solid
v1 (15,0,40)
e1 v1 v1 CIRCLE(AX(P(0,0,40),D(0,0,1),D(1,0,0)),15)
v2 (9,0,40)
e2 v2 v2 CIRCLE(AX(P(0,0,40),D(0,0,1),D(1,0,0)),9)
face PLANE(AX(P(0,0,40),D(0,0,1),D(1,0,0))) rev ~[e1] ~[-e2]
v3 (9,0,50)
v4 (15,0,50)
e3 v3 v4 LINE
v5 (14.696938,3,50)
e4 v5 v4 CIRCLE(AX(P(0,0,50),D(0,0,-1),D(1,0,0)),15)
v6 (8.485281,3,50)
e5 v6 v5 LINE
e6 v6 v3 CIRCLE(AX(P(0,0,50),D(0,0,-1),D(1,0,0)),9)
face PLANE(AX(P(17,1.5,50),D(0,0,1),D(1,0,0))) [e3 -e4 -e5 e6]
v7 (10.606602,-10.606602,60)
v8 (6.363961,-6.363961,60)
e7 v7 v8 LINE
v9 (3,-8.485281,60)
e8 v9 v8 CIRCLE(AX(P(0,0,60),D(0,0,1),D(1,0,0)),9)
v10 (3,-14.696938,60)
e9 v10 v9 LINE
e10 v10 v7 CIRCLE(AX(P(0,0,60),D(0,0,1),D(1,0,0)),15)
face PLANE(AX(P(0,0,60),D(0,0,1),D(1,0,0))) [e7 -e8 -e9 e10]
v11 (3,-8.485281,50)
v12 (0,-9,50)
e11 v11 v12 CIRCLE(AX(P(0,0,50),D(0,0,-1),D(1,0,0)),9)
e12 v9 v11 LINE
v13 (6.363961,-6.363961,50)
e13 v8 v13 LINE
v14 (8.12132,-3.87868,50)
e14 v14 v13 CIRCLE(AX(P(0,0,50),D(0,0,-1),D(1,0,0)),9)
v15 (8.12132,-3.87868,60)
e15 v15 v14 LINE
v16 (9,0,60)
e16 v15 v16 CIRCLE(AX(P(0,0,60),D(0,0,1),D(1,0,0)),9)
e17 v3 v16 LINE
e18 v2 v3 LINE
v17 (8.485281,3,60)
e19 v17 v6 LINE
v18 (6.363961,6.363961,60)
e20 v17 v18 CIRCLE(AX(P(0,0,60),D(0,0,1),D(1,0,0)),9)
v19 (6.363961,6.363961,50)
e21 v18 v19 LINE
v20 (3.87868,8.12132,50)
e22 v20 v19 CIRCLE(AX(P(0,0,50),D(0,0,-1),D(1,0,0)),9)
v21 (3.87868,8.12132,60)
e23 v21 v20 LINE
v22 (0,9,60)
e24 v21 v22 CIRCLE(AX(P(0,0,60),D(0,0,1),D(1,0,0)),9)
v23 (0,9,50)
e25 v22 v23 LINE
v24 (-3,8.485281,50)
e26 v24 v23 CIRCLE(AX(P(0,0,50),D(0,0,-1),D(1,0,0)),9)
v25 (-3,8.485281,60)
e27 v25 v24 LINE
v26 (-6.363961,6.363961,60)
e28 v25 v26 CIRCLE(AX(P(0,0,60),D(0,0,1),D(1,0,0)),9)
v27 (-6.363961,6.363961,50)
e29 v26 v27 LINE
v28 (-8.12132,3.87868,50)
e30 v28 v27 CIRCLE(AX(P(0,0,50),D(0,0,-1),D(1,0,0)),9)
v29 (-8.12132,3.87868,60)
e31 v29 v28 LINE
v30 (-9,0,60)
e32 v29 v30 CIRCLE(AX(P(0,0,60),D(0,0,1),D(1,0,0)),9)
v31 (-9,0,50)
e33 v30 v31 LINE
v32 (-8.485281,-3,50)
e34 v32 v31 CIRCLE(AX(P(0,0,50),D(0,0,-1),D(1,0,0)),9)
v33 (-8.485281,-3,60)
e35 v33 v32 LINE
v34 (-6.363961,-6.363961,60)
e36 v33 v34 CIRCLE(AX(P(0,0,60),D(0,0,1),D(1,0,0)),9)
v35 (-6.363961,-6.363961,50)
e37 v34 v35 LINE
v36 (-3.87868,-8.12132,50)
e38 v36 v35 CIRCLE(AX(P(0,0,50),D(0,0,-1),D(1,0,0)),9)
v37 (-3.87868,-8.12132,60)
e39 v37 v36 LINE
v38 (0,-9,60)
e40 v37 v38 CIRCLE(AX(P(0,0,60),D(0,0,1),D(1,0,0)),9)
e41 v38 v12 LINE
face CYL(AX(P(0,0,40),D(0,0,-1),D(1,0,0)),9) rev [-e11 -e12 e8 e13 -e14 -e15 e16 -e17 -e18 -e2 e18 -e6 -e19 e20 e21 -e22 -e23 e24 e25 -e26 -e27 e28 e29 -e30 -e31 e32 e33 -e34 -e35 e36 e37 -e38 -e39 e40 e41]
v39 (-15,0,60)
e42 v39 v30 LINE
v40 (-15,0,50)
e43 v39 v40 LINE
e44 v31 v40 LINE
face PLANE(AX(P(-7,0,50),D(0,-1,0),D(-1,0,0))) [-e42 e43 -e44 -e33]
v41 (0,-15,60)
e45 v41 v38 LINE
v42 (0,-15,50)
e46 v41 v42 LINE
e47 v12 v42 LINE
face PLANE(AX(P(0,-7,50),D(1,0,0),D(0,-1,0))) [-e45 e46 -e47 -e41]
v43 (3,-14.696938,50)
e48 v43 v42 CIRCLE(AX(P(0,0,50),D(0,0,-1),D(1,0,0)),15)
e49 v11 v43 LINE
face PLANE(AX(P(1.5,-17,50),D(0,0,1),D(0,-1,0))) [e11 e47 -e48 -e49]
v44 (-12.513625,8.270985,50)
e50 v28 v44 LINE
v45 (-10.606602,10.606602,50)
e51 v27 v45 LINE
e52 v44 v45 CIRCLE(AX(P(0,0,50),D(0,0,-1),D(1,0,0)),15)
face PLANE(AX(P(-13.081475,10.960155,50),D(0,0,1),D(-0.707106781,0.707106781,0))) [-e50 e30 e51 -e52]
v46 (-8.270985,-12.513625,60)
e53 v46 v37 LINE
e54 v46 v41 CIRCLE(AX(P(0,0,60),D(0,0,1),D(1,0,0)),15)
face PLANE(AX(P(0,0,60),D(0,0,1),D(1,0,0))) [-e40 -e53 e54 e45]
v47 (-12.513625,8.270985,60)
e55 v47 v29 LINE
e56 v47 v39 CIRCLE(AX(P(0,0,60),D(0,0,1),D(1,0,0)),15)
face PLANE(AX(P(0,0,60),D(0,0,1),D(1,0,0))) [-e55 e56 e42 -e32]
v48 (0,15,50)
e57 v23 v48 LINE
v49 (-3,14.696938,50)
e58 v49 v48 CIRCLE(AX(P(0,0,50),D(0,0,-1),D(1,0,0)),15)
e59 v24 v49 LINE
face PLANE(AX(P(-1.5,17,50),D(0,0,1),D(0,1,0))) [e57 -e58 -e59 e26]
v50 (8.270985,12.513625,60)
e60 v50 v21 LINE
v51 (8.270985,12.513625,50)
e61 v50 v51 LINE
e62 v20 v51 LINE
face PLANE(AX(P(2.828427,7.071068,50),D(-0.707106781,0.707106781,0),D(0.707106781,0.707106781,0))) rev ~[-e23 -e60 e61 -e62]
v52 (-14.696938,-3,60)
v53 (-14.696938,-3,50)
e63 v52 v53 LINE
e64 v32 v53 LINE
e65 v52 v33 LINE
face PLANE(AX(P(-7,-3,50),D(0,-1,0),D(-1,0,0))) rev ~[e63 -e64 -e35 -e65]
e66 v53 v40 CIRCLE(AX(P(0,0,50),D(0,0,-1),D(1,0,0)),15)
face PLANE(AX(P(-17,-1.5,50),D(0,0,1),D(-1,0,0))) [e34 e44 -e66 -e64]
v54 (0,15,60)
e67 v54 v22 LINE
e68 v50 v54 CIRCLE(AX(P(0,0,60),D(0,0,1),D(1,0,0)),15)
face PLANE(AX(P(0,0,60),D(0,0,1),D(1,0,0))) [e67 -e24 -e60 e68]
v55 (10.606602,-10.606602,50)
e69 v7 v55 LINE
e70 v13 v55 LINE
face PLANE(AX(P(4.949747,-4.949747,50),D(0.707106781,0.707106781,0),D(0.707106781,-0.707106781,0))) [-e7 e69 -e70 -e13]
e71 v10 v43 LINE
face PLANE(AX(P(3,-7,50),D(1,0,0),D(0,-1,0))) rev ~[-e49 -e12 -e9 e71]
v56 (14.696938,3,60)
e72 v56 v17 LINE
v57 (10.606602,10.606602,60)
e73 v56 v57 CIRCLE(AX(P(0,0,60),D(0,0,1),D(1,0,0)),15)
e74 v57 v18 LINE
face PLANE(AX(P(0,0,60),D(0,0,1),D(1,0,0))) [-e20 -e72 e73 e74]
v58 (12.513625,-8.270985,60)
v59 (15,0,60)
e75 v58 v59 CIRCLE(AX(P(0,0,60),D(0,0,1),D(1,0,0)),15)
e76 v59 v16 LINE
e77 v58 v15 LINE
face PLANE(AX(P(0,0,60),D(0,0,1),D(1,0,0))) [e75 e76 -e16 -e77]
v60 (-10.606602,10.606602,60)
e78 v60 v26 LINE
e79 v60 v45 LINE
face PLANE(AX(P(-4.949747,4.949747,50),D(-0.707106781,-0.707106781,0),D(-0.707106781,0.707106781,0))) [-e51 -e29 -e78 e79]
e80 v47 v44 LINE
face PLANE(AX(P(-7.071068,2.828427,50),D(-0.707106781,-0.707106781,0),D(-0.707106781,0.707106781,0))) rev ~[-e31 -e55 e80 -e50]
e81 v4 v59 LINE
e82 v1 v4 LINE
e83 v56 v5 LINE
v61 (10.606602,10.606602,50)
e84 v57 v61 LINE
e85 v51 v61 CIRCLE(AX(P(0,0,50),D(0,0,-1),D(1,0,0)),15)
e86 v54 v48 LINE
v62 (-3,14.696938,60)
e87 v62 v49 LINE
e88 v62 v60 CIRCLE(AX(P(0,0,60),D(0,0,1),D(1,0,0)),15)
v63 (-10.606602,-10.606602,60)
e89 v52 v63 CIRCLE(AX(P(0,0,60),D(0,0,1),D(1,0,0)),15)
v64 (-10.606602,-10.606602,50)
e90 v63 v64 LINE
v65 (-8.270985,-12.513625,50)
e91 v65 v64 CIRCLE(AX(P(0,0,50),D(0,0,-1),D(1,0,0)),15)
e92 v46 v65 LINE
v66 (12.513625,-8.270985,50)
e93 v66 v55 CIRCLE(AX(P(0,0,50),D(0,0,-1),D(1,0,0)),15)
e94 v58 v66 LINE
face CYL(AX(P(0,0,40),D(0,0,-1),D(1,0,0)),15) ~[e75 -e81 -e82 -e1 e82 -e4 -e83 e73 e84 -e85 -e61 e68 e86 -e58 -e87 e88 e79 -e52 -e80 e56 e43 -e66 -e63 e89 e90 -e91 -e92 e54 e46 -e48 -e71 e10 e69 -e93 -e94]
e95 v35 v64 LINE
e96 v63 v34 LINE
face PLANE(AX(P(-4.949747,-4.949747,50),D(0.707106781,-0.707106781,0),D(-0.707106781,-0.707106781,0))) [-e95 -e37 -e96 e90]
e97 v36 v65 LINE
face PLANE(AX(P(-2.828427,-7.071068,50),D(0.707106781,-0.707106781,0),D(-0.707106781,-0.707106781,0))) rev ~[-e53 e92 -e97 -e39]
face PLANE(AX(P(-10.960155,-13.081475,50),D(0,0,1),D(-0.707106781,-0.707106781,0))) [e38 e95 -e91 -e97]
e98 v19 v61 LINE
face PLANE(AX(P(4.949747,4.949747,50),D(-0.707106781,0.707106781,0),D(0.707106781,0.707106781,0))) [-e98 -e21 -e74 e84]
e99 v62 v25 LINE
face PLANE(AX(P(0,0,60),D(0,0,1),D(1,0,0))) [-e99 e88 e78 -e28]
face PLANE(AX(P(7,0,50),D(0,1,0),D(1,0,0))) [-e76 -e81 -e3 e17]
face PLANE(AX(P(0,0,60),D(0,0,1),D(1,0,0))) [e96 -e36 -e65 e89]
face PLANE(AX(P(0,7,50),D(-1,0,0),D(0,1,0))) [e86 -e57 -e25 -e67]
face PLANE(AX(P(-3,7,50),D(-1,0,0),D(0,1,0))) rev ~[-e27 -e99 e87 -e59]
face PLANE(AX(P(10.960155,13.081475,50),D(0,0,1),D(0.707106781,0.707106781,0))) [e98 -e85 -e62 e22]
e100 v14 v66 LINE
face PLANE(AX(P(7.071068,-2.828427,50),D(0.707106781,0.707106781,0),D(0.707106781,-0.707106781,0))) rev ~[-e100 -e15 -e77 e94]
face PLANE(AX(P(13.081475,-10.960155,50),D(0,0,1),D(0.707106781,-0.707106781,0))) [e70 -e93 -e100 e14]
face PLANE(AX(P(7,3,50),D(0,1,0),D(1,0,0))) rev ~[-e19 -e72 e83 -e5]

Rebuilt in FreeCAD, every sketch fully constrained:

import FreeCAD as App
import Part
import Sketcher

doc = App.newDocument("Part")
body = doc.addObject("PartDesign::Body", "Body")

# Sketch on XY plane
sketch1 = body.newObject("Sketcher::SketchObject", "Sketch")
sketch1.AttachmentSupport = (doc.getObject("XY_Plane"), [""])
sketch1.MapMode = "FlatFace"
sketch1.AttachmentOffset = App.Placement(App.Vector(0, 0, 50), App.Rotation())
sketch1.addGeometry([
    Part.LineSegment(App.Vector(7, 3, 0), App.Vector(7, 0, 0)),
    Part.LineSegment(App.Vector(7, 0, 0), App.Vector(27, 0, 0)),
    Part.LineSegment(App.Vector(27, 0, 0), App.Vector(27, 3, 0)),
    Part.LineSegment(App.Vector(27, 3, 0), App.Vector(7, 3, 0)),
], False)
sketch1.addConstraint([
    Sketcher.Constraint("Coincident", 0, 2, 1, 1),
    Sketcher.Constraint("Coincident", 1, 2, 2, 1),
    Sketcher.Constraint("Coincident", 2, 2, 3, 1),
    Sketcher.Constraint("Coincident", 3, 2, 0, 1),
    Sketcher.Constraint("Vertical", 0),
    Sketcher.Constraint("Horizontal", 1),
    Sketcher.Constraint("Vertical", 2),
    Sketcher.Constraint("Horizontal", 3),
    Sketcher.Constraint("PointOnObject", 0, 2, -1),
    Sketcher.Constraint("DistanceX", 1, 1, 1, 2, 20.0),
    Sketcher.Constraint("DistanceY", 0, 2, 0, 1, 3.0),
    Sketcher.Constraint("DistanceX", -1, 1, 0, 2, 7.0),
])
pad1 = body.newObject("PartDesign::Pad", "Pad")
pad1.Profile = sketch1
pad1.Length = 100
body2 = doc.addObject("PartDesign::Body", "Body001")
body2.AllowCompound = True
doc.recompute()

body2.BaseFeature = body
doc.recompute()

body3 = doc.addObject("PartDesign::Body", "Body002")
body3.BaseFeature = body
body3.Placement = App.Placement(App.Vector(0, 0, 0), App.Rotation(App.Vector(0, 0, 1), 45))
boolean = body2.newObject("PartDesign::Boolean", "Boolean")
boolean.Type = "Fuse"
boolean.addObjects([body3])
doc.recompute()

body4 = doc.addObject("PartDesign::Body", "Body003")
body4.BaseFeature = body
body4.Placement = App.Placement(App.Vector(0, 0, 0), App.Rotation(App.Vector(0, 0, 1), 90))
boolean2 = body2.newObject("PartDesign::Boolean", "Boolean001")
boolean2.Type = "Fuse"
boolean2.addObjects([body4])
doc.recompute()

body5 = doc.addObject("PartDesign::Body", "Body004")
body5.BaseFeature = body
body5.Placement = App.Placement(App.Vector(0, 0, 0), App.Rotation(App.Vector(0, 0, 1), 135))
boolean3 = body2.newObject("PartDesign::Boolean", "Boolean002")
boolean3.Type = "Fuse"
boolean3.addObjects([body5])
doc.recompute()

body6 = doc.addObject("PartDesign::Body", "Body005")
body6.BaseFeature = body
body6.Placement = App.Placement(App.Vector(0, 0, 0), App.Rotation(App.Vector(0, 0, 1), 180))
boolean4 = body2.newObject("PartDesign::Boolean", "Boolean003")
boolean4.Type = "Fuse"
boolean4.addObjects([body6])
doc.recompute()

body7 = doc.addObject("PartDesign::Body", "Body006")
body7.BaseFeature = body
body7.Placement = App.Placement(App.Vector(0, 0, 0), App.Rotation(App.Vector(0, 0, 1), 225))
boolean5 = body2.newObject("PartDesign::Boolean", "Boolean004")
boolean5.Type = "Fuse"
boolean5.addObjects([body7])
doc.recompute()

body8 = doc.addObject("PartDesign::Body", "Body007")
body8.BaseFeature = body
body8.Placement = App.Placement(App.Vector(0, 0, 0), App.Rotation(App.Vector(0, 0, 1), 270))
boolean6 = body2.newObject("PartDesign::Boolean", "Boolean005")
boolean6.Type = "Fuse"
boolean6.addObjects([body8])
doc.recompute()

body.Placement = App.Placement(App.Vector(0, 0, 0), App.Rotation(App.Vector(0, 0, 1), 315))
boolean7 = body2.newObject("PartDesign::Boolean", "Boolean006")
boolean7.Type = "Fuse"
boolean7.addObjects([body])
body9 = doc.addObject("PartDesign::Body", "Body008")

# Sketch on XY plane
sketch2 = body9.newObject("Sketcher::SketchObject", "Sketch001")
sketch2.AttachmentSupport = (doc.getObject("XY_Plane008"), [""])
sketch2.MapMode = "FlatFace"
sketch2.AttachmentOffset = App.Placement(App.Vector(0, 0, 40), App.Rotation())
sketch2.addGeometry(Part.Circle(App.Vector(0, 0, 0), App.Vector(0, 0, 1), 9), False)
sketch2.addConstraint([
    Sketcher.Constraint("Coincident", 0, 3, -1, 1),
    Sketcher.Constraint("Diameter", 0, 18.0),
])
pad2 = body9.newObject("PartDesign::Pad", "Pad001")
pad2.Profile = sketch2
pad2.Length = 20
body10 = doc.addObject("PartDesign::Body", "Body009")

# Sketch on XY plane
sketch3 = body10.newObject("Sketcher::SketchObject", "Sketch002")
sketch3.AttachmentSupport = (doc.getObject("XY_Plane009"), [""])
sketch3.MapMode = "FlatFace"
sketch3.AttachmentOffset = App.Placement(App.Vector(0, 0, 40), App.Rotation())
sketch3.addGeometry(Part.Circle(App.Vector(0, 0, 0), App.Vector(0, 0, 1), 15), False)
sketch3.addConstraint([
    Sketcher.Constraint("Coincident", 0, 3, -1, 1),
    Sketcher.Constraint("Diameter", 0, 30.0),
])
pad3 = body10.newObject("PartDesign::Pad", "Pad002")
pad3.Profile = sketch3
pad3.Length = 20
doc.recompute()

boolean8 = body10.newObject("PartDesign::Boolean", "Boolean007")
boolean8.Type = "Cut"
boolean8.addObjects([body9])
doc.recompute()

boolean9 = body10.newObject("PartDesign::Boolean", "Boolean008")
boolean9.Type = "Cut"
boolean9.addObjects([body2])

doc.recompute()
